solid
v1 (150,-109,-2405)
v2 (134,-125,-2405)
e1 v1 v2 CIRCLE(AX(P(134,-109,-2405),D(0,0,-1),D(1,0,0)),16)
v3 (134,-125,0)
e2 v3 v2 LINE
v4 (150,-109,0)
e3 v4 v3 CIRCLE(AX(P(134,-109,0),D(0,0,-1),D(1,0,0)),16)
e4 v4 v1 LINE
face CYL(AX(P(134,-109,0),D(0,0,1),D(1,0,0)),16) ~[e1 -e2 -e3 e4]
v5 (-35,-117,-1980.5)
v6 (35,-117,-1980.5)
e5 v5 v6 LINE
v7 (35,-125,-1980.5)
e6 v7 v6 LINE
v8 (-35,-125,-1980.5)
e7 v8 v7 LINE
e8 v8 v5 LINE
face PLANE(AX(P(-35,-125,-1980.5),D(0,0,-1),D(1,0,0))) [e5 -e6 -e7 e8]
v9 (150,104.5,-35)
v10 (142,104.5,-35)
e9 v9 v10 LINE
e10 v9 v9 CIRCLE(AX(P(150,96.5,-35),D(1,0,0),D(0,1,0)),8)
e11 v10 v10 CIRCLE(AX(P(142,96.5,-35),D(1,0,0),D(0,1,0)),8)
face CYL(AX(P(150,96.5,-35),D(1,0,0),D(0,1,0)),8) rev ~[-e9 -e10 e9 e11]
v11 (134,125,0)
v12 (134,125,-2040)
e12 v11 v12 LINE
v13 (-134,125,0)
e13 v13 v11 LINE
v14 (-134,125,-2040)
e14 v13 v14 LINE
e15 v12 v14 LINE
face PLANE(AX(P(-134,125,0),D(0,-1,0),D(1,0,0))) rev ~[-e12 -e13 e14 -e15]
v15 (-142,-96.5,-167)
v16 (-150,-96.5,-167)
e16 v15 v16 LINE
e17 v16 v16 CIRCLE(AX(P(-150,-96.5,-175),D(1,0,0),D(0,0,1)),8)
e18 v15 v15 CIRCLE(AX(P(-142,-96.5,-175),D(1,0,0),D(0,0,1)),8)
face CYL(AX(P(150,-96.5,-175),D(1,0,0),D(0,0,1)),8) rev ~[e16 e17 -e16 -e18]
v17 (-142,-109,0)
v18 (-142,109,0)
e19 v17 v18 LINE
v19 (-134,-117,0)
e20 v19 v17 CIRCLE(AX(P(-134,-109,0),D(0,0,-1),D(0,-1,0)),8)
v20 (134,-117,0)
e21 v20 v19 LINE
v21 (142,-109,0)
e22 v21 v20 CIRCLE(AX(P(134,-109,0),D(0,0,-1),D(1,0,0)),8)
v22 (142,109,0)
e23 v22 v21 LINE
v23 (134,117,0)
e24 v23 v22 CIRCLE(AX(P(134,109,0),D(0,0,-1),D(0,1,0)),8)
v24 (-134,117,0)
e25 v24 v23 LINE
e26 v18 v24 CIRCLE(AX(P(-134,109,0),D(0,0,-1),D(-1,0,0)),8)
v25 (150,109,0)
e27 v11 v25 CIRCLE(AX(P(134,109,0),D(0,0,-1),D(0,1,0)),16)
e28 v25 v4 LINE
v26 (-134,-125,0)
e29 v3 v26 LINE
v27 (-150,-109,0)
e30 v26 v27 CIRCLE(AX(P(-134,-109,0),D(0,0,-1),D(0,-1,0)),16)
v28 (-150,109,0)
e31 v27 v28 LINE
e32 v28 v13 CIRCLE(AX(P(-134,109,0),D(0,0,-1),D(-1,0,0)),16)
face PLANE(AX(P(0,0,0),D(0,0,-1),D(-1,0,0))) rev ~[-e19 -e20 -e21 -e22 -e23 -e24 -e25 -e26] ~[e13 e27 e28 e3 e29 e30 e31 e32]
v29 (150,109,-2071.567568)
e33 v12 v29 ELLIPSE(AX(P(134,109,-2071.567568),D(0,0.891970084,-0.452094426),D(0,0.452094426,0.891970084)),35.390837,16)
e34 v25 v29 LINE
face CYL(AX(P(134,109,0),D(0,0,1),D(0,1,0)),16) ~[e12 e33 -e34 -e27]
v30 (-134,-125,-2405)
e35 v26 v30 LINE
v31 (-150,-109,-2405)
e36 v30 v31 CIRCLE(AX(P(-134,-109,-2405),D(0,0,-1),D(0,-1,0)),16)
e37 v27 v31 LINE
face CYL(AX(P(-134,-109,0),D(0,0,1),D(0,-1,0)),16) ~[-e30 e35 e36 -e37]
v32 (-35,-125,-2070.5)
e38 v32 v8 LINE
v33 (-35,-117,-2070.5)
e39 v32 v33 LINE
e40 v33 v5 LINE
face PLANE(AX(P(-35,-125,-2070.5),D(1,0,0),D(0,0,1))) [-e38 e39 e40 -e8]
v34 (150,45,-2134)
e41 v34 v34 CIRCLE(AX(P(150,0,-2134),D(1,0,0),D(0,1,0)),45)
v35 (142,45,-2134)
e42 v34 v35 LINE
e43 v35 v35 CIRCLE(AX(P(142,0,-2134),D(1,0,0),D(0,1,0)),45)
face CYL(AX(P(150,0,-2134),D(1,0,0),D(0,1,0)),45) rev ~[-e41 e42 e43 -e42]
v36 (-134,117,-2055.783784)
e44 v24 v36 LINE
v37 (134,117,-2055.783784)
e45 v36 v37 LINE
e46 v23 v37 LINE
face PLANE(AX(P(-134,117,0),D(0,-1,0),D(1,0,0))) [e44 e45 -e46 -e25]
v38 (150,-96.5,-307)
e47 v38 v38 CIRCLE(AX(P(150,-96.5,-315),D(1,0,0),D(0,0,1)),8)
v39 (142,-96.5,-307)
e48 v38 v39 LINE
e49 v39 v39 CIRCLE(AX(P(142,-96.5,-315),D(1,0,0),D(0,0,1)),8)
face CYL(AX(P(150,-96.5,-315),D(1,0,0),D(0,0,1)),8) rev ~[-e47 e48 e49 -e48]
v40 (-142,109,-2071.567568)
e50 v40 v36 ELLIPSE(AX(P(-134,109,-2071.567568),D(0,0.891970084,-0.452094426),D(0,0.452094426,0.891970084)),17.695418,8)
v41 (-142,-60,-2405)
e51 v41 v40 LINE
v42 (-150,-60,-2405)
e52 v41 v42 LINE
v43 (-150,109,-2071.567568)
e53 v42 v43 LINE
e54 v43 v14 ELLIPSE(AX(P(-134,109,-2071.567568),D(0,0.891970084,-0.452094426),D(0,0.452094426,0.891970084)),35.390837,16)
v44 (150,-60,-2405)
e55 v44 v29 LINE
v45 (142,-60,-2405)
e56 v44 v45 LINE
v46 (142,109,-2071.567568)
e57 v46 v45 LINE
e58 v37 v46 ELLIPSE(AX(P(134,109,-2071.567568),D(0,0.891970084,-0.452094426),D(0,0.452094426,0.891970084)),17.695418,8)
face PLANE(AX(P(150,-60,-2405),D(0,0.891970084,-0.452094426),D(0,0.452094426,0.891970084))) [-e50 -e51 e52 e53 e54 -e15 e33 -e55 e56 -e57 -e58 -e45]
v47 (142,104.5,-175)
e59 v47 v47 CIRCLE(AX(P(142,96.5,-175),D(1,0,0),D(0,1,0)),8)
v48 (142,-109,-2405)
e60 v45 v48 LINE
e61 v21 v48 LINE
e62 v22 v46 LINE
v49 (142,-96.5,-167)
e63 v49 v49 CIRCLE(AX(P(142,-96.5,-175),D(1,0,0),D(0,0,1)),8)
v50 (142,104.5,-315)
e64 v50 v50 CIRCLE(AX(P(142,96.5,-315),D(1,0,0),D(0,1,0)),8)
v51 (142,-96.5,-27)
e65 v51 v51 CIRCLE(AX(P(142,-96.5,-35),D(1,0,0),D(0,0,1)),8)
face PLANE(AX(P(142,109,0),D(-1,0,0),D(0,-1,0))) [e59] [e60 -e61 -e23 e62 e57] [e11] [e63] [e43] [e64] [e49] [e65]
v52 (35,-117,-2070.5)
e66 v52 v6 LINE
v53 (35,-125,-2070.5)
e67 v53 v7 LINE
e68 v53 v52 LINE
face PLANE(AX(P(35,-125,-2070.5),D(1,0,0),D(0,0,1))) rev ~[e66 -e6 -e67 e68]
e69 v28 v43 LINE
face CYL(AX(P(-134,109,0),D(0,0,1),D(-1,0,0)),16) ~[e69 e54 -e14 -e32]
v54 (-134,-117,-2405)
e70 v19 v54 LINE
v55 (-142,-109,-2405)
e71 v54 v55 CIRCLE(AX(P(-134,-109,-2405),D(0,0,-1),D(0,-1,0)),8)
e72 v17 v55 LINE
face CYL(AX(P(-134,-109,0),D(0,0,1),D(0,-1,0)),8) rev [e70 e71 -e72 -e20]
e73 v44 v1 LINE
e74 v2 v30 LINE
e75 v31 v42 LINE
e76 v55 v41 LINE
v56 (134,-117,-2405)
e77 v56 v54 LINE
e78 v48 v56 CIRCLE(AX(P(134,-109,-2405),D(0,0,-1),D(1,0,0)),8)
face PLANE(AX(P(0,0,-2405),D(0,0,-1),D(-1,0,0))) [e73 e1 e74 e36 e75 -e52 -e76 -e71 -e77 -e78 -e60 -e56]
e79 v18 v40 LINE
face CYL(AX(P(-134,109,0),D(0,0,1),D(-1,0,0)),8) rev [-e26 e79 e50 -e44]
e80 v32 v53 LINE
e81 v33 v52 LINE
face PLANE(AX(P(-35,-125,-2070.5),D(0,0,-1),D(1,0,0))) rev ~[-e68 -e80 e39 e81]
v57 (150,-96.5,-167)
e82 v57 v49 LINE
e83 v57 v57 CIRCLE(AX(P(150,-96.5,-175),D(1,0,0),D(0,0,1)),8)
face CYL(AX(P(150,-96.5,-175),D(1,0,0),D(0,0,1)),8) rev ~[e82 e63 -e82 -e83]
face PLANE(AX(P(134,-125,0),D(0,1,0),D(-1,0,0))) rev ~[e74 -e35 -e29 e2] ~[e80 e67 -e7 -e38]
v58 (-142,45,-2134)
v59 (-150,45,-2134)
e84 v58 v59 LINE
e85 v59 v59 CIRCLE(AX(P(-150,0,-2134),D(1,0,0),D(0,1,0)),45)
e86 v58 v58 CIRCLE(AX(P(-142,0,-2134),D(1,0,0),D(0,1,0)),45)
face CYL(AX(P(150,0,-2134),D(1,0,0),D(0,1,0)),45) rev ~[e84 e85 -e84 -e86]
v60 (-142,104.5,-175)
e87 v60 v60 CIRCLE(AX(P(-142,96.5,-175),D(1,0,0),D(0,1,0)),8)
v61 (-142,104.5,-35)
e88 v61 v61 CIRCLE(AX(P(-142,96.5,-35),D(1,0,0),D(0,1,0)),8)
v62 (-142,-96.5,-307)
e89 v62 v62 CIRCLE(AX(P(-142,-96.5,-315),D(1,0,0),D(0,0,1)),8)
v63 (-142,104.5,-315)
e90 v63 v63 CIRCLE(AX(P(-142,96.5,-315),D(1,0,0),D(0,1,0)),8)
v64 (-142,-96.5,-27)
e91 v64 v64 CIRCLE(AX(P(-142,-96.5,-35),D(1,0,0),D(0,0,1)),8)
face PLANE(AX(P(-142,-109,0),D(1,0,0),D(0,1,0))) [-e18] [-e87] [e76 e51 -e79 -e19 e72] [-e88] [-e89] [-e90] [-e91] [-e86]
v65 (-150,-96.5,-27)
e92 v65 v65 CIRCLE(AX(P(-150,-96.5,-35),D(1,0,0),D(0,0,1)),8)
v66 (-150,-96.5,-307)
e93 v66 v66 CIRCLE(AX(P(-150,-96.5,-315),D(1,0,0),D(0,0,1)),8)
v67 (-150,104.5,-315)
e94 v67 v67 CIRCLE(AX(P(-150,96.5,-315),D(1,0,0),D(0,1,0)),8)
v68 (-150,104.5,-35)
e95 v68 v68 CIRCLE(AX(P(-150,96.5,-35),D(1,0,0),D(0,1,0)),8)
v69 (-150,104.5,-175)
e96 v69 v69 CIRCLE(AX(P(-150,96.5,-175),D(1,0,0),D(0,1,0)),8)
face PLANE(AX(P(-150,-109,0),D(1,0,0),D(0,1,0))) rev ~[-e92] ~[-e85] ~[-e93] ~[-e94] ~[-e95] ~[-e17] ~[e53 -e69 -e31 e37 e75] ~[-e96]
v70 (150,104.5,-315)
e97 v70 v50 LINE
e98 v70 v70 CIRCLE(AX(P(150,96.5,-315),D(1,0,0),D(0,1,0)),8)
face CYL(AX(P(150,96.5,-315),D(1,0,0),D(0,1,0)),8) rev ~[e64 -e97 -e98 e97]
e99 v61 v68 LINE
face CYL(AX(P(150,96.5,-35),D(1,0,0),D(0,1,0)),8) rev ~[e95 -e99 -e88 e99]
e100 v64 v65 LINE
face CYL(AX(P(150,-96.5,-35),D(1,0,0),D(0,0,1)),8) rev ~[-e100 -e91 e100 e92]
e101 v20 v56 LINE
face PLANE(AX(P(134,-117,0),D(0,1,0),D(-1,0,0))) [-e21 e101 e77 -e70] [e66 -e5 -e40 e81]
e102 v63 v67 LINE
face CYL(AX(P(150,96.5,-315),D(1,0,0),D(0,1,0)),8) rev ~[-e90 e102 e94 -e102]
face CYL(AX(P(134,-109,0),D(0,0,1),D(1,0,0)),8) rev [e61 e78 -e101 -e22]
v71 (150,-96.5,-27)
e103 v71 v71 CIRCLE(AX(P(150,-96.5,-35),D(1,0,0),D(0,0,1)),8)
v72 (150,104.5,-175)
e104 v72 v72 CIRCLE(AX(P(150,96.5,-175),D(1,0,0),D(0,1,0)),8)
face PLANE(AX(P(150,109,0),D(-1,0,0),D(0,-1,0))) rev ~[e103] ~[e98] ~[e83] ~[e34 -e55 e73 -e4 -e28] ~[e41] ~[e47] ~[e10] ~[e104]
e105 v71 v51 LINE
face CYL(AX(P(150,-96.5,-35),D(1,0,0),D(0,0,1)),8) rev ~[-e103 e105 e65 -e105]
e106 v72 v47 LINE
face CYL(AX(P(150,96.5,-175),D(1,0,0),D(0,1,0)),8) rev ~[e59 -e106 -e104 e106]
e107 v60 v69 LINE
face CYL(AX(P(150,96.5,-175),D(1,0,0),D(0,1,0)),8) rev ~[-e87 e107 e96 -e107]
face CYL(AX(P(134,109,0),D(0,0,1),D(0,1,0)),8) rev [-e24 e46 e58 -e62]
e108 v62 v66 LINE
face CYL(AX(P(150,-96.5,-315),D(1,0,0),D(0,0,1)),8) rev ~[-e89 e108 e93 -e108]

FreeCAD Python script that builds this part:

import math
import FreeCAD as App
import Part
import Sketcher

V = App.Vector

doc = App.newDocument("Part")
params = doc.addObject("Spreadsheet::Sheet", "Params")
for row, (alias, value) in enumerate([
    ("sketch1_radius", "16 mm"),
    ("sketch1_radius2", "8 mm"),
    ("sketch1_width", "268 mm"),
    ("sketch1_height", "218 mm"),
    ("pad1_length", "2405 mm"),
    ("sketch2_diameter", "16 mm"),
    ("sketch2_diameter2", "90 mm"),
    ("sketch2_width", "185 mm"),
    ("sketch2_height", "365 mm"),
    ("sketch3_width", "70 mm"),
    ("sketch3_height", "90 mm"),
], start=1):
    params.set(f"A{row}", alias)
    params.set(f"B{row}", "=" + value)
    params.setAlias(f"B{row}", alias)

body = doc.addObject("PartDesign::Body", "Body")

sketch1 = body.newObject("Sketcher::SketchObject", "Sketch")
sketch1.AttachmentSupport = (doc.getObject("XY_Plane"), [""])
sketch1.MapMode = "FlatFace"
sketch1.addGeometry(Part.LineSegment(V(134, 125, 0), V(-134, 125, 0)), False)
sketch1.addGeometry(Part.ArcOfCircle(Part.Circle(V(-134, 109, 0), V(0, 0, 1), 16), math.radians(90), math.radians(180)), False)
sketch1.addGeometry(Part.LineSegment(V(-150, 109, 0), V(-150, -109, 0)), False)
sketch1.addGeometry(Part.ArcOfCircle(Part.Circle(V(-134, -109, 0), V(0, 0, 1), 16), math.radians(180), math.radians(270)), False)
sketch1.addGeometry(Part.LineSegment(V(-134, -125, 0), V(134, -125, 0)), False)
sketch1.addGeometry(Part.ArcOfCircle(Part.Circle(V(134, -109, 0), V(0, 0, 1), 16), math.radians(-90), math.radians(0)), False)
sketch1.addGeometry(Part.LineSegment(V(150, -109, 0), V(150, 109, 0)), False)
sketch1.addGeometry(Part.ArcOfCircle(Part.Circle(V(134, 109, 0), V(0, 0, 1), 16), math.radians(0), math.radians(90)), False)
sketch1.addGeometry(Part.LineSegment(V(-134, 117, 0), V(134, 117, 0)), False)
sketch1.addGeometry(Part.ArcOfCircle(Part.Circle(V(134, 109, 0), V(0, 0, 1), 8), math.radians(0), math.radians(90)), False)
sketch1.addGeometry(Part.LineSegment(V(142, 109, 0), V(142, -109, 0)), False)
sketch1.addGeometry(Part.ArcOfCircle(Part.Circle(V(134, -109, 0), V(0, 0, 1), 8), math.radians(-90), math.radians(0)), False)
sketch1.addGeometry(Part.LineSegment(V(134, -117, 0), V(-134, -117, 0)), False)
sketch1.addGeometry(Part.ArcOfCircle(Part.Circle(V(-134, -109, 0), V(0, 0, 1), 8), math.radians(-180), math.radians(-90)), False)
sketch1.addGeometry(Part.LineSegment(V(-142, -109, 0), V(-142, 109, 0)), False)
sketch1.addGeometry(Part.ArcOfCircle(Part.Circle(V(-134, 109, 0), V(0, 0, 1), 8), math.radians(90), math.radians(180)), False)
sketch1.addConstraint(Sketcher.Constraint("Tangent", 0, 2, 1, 1))
sketch1.addConstraint(Sketcher.Constraint("Tangent", 1, 2, 2, 1))
sketch1.addConstraint(Sketcher.Constraint("Tangent", 2, 2, 3, 1))
sketch1.addConstraint(Sketcher.Constraint("Tangent", 3, 2, 4, 1))
sketch1.addConstraint(Sketcher.Constraint("Tangent", 4, 2, 5, 1))
sketch1.addConstraint(Sketcher.Constraint("Tangent", 5, 2, 6, 1))
sketch1.addConstraint(Sketcher.Constraint("Tangent", 6, 2, 7, 1))
sketch1.addConstraint(Sketcher.Constraint("Tangent", 7, 2, 0, 1))
sketch1.addConstraint(Sketcher.Constraint("Tangent", 8, 2, 9, 2))
sketch1.addConstraint(Sketcher.Constraint("Tangent", 9, 1, 10, 1))
sketch1.addConstraint(Sketcher.Constraint("Tangent", 10, 2, 11, 2))
sketch1.addConstraint(Sketcher.Constraint("Tangent", 11, 1, 12, 1))
sketch1.addConstraint(Sketcher.Constraint("Tangent", 12, 2, 13, 2))
sketch1.addConstraint(Sketcher.Constraint("Tangent", 13, 1, 14, 1))
sketch1.addConstraint(Sketcher.Constraint("Tangent", 14, 2, 15, 2))
sketch1.addConstraint(Sketcher.Constraint("Tangent", 15, 1, 8, 1))
sketch1.addConstraint(Sketcher.Constraint("Horizontal", 0))
sketch1.addConstraint(Sketcher.Constraint("Vertical", 2))
sketch1.addConstraint(Sketcher.Constraint("Horizontal", 4))
sketch1.addConstraint(Sketcher.Constraint("Vertical", 6))
sketch1.addConstraint(Sketcher.Constraint("Horizontal", 8))
sketch1.addConstraint(Sketcher.Constraint("Vertical", 10))
sketch1.addConstraint(Sketcher.Constraint("Horizontal", 12))
sketch1.addConstraint(Sketcher.Constraint("Vertical", 14))
sketch1.addConstraint(Sketcher.Constraint("Coincident", 9, 3, 7, 3))
sketch1.addConstraint(Sketcher.Constraint("Coincident", 11, 3, 5, 3))
sketch1.addConstraint(Sketcher.Constraint("Coincident", 13, 3, 3, 3))
sketch1.addConstraint(Sketcher.Constraint("Equal", 1, 3))
sketch1.addConstraint(Sketcher.Constraint("Equal", 3, 5))
sketch1.addConstraint(Sketcher.Constraint("Equal", 5, 7))
sketch1.addConstraint(Sketcher.Constraint("Equal", 13, 15))
sketch1.addConstraint(Sketcher.Constraint("Symmetric", 1, 3, 5, 3, -1, 1))
sketch1.addConstraint(Sketcher.Constraint("Radius", 1, 16.0))
sketch1.addConstraint(Sketcher.Constraint("Radius", 9, 8.0))
sketch1.addConstraint(Sketcher.Constraint("DistanceX", 0, 2, 0, 1, 268.0))
sketch1.addConstraint(Sketcher.Constraint("DistanceY", 2, 2, 2, 1, 218.0))
sketch1.setExpression("Constraints[32]", "Params.sketch1_radius")
sketch1.setExpression("Constraints[33]", "Params.sketch1_radius2")
sketch1.setExpression("Constraints[34]", "Params.sketch1_width")
sketch1.setExpression("Constraints[35]", "Params.sketch1_height")
pad1 = body.newObject("PartDesign::Pad", "Pad")
pad1.Profile = sketch1
pad1.setExpression("Length", "Params.pad1_length")
pad1.Reversed = True

sketch2 = body.newObject("Sketcher::SketchObject", "Sketch001")
sketch2.AttachmentSupport = (doc.getObject("YZ_Plane"), [""])
sketch2.MapMode = "FlatFace"
sketch2.AttachmentOffset = App.Placement(V(0, 0, 150), App.Rotation())
sketch2.addGeometry(Part.Circle(V(96, -35, 0), V(0, 0, 1), 8), False)
sketch2.addGeometry(Part.Circle(V(96, -175, 0), V(0, 0, 1), 8), False)
sketch2.addGeometry(Part.Circle(V(96, -315, 0), V(0, 0, 1), 8), False)
sketch2.addGeometry(Part.Circle(V(0, -2134, 0), V(0, 0, 1), 45), False)
sketch2.addGeometry(Part.Circle(V(-96, -315, 0), V(0, 0, 1), 8), False)
sketch2.addGeometry(Part.Circle(V(-96, -175, 0), V(0, 0, 1), 8), False)
sketch2.addGeometry(Part.Circle(V(-96, -35, 0), V(0, 0, 1), 8), False)
sketch2.addGeometry(Part.LineSegment(V(125, -2040, 0), V(-60, -2405, 0)), False)
sketch2.addGeometry(Part.LineSegment(V(-60, -2405, 0), V(125, -2405, 0)), False)
sketch2.addGeometry(Part.LineSegment(V(125, -2405, 0), V(125, -2040, 0)), False)
sketch2.addConstraint(Sketcher.Constraint("Coincident", 7, 2, 8, 1))
sketch2.addConstraint(Sketcher.Constraint("Coincident", 8, 2, 9, 1))
sketch2.addConstraint(Sketcher.Constraint("Coincident", 9, 2, 7, 1))
sketch2.addConstraint(Sketcher.Constraint("Horizontal", 8))
sketch2.addConstraint(Sketcher.Constraint("Vertical", 9))
sketch2.addConstraint(Sketcher.Constraint("Equal", 0, 1))
sketch2.addConstraint(Sketcher.Constraint("Equal", 1, 2))
sketch2.addConstraint(Sketcher.Constraint("Equal", 2, 4))
sketch2.addConstraint(Sketcher.Constraint("Equal", 4, 5))
sketch2.addConstraint(Sketcher.Constraint("Equal", 5, 6))
sketch2.addConstraint(Sketcher.Constraint("Symmetric", 2, 3, 4, 3, -2))
sketch2.addConstraint(Sketcher.Constraint("Symmetric", 1, 3, 5, 3, -2))
sketch2.addConstraint(Sketcher.Constraint("Symmetric", 0, 3, 6, 3, -2))
sketch2.addConstraint(Sketcher.Constraint("PointOnObject", 3, 3, -2))
sketch2.addConstraint(Sketcher.Constraint("Vertical", 0, 3, 1, 3))
sketch2.addConstraint(Sketcher.Constraint("Vertical", 1, 3, 2, 3))
sketch2.addConstraint(Sketcher.Constraint("Diameter", 0, 16.0))
sketch2.addConstraint(Sketcher.Constraint("Diameter", 3, 90.0))
sketch2.addConstraint(Sketcher.Constraint("DistanceX", 8, 1, 8, 2, 185.0))
sketch2.addConstraint(Sketcher.Constraint("DistanceY", 9, 1, 9, 2, 365.0))
sketch2.addConstraint(Sketcher.Constraint("DistanceY", 0, 3, -1, 1, 35.0))
sketch2.addConstraint(Sketcher.Constraint("DistanceY", 1, 3, -1, 1, 175.0))
sketch2.addConstraint(Sketcher.Constraint("DistanceY", 2, 3, -1, 1, 315.0))
sketch2.addConstraint(Sketcher.Constraint("DistanceY", 3, 3, -1, 1, 2134.0))
sketch2.addConstraint(Sketcher.Constraint("DistanceX", 7, 2, -1, 1, 60.0))
sketch2.addConstraint(Sketcher.Constraint("DistanceY", 7, 2, -1, 1, 2405.0))
sketch2.addConstraint(Sketcher.Constraint("DistanceX", 4, 3, 2, 3, 193.0))
sketch2.setExpression("Constraints[16]", "Params.sketch2_diameter")
sketch2.setExpression("Constraints[17]", "Params.sketch2_diameter2")
sketch2.setExpression("Constraints[18]", "Params.sketch2_width")
sketch2.setExpression("Constraints[19]", "Params.sketch2_height")
pocket1 = body.newObject("PartDesign::Pocket", "Pocket")
pocket1.Profile = sketch2
pocket1.Type = "ThroughAll"

sketch3 = body.newObject("Sketcher::SketchObject", "Sketch002")
sketch3.AttachmentSupport = (doc.getObject("XZ_Plane"), [""])
sketch3.MapMode = "FlatFace"
sketch3.AttachmentOffset = App.Placement(V(0, 0, 125), App.Rotation())
sketch3.addGeometry(Part.LineSegment(V(-35, -1980, 0), V(-35, -2070, 0)), False)
sketch3.addGeometry(Part.LineSegment(V(-35, -2070, 0), V(35, -2070, 0)), False)
sketch3.addGeometry(Part.LineSegment(V(35, -2070, 0), V(35, -1980, 0)), False)
sketch3.addGeometry(Part.LineSegment(V(35, -1980, 0), V(-35, -1980, 0)), False)
sketch3.addConstraint(Sketcher.Constraint("Coincident", 0, 2, 1, 1))
sketch3.addConstraint(Sketcher.Constraint("Coincident", 1, 2, 2, 1))
sketch3.addConstraint(Sketcher.Constraint("Coincident", 2, 2, 3, 1))
sketch3.addConstraint(Sketcher.Constraint("Coincident", 3, 2, 0, 1))
sketch3.addConstraint(Sketcher.Constraint("Vertical", 0))
sketch3.addConstraint(Sketcher.Constraint("Horizontal", 1))
sketch3.addConstraint(Sketcher.Constraint("Vertical", 2))
sketch3.addConstraint(Sketcher.Constraint("Horizontal", 3))
sketch3.addConstraint(Sketcher.Constraint("DistanceX", 1, 1, 1, 2, 70.0))
sketch3.addConstraint(Sketcher.Constraint("DistanceY", 0, 2, 0, 1, 90.0))
sketch3.addConstraint(Sketcher.Constraint("DistanceX", 0, 2, -1, 1, 35.0))
sketch3.addConstraint(Sketcher.Constraint("DistanceY", 0, 2, -1, 1, 2070.5))
sketch3.setExpression("Constraints[8]", "Params.sketch3_width")
sketch3.setExpression("Constraints[9]", "Params.sketch3_height")
pocket2 = body.newObject("PartDesign::Pocket", "Pocket001")
pocket2.Profile = sketch3
pocket2.Type = "UpToFirst"

doc.recompute()
